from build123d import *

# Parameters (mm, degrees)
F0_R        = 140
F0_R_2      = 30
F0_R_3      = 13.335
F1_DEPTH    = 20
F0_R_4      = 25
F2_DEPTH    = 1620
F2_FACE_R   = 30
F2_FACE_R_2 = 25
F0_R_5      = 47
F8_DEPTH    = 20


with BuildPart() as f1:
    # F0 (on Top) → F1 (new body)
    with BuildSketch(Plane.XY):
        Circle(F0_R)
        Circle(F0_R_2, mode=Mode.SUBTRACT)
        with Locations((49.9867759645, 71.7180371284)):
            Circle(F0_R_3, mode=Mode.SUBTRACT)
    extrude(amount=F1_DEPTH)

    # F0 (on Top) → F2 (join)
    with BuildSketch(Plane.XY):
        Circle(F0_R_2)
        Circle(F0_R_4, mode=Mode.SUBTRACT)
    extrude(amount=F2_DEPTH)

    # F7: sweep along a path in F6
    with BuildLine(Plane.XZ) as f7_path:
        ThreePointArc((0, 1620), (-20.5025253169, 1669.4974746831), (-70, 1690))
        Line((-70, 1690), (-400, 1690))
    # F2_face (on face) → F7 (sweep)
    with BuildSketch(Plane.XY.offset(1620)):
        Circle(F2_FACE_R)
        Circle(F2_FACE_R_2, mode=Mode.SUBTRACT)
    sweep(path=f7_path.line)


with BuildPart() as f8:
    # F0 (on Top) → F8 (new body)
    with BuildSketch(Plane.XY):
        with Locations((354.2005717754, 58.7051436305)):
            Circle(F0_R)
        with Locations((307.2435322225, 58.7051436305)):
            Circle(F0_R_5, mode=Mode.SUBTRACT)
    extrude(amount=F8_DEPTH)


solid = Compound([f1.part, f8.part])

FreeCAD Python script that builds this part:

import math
import FreeCAD as App
import Part
import Sketcher

V = App.Vector

doc = App.newDocument("Part")
body = doc.addObject("PartDesign::Body", "Body")

# Sketch on XY plane
sketch1 = body.newObject("Sketcher::SketchObject", "Sketch")
sketch1.AttachmentSupport = (doc.getObject("XY_Plane"), [""])
sketch1.MapMode = "FlatFace"
sketch1.addGeometry([
    Part.Circle(V(0, 0, 0), V(0, 0, 1), 140),
    Part.Circle(V(0, 0, 0), V(0, 0, 1), 30),
    Part.Circle(V(49.986776, 71.718037, 0), V(0, 0, 1), 13.335),
], False)
sketch1.addConstraint([
    Sketcher.Constraint("Coincident", 0, 3, -1, 1),
    Sketcher.Constraint("Coincident", 1, 3, -1, 1),
    Sketcher.Constraint("Diameter", 0, 280.0),
    Sketcher.Constraint("Diameter", 1, 60.0),
    Sketcher.Constraint("Diameter", 2, 26.67),
    Sketcher.Constraint("DistanceX", -1, 1, 2, 3, 49.986776),
    Sketcher.Constraint("DistanceY", -1, 1, 2, 3, 71.718037),
])
pad1 = body.newObject("PartDesign::Pad", "Pad")
pad1.Profile = sketch1
pad1.Length = 20

# Sketch on XY plane
sketch2 = body.newObject("Sketcher::SketchObject", "Sketch001")
sketch2.AttachmentSupport = (doc.getObject("XY_Plane"), [""])
sketch2.MapMode = "FlatFace"
sketch2.addGeometry([
    Part.Circle(V(0, 0, 0), V(0, 0, 1), 30),
    Part.Circle(V(0, 0, 0), V(0, 0, 1), 25),
], False)
sketch2.addConstraint([
    Sketcher.Constraint("Coincident", 0, 3, -1, 1),
    Sketcher.Constraint("Coincident", 1, 3, -1, 1),
    Sketcher.Constraint("Diameter", 0, 60.0),
    Sketcher.Constraint("Diameter", 1, 50.0),
])
pad2 = body.newObject("PartDesign::Pad", "Pad001")
pad2.Profile = sketch2
pad2.Length = 1620

# Sketch on XY plane
sketch3 = body.newObject("Sketcher::SketchObject", "Sketch002")
sketch3.AttachmentSupport = (doc.getObject("XY_Plane"), [""])
sketch3.MapMode = "FlatFace"
sketch3.AttachmentOffset = App.Placement(V(0, 0, 1620), App.Rotation())
sketch3.addGeometry([
    Part.Circle(V(0, 0, 0), V(0, 0, 1), 30),
    Part.Circle(V(0, 0, 0), V(0, 0, 1), 25),
], False)
sketch3.addConstraint([
    Sketcher.Constraint("Coincident", 0, 3, -1, 1),
    Sketcher.Constraint("Coincident", 1, 3, -1, 1),
    Sketcher.Constraint("Diameter", 0, 60.0),
    Sketcher.Constraint("Diameter", 1, 50.0),
])

# Sketch on XZ plane
sketch4 = body.newObject("Sketcher::SketchObject", "Sketch003")
sketch4.AttachmentSupport = (doc.getObject("XZ_Plane"), [""])
sketch4.MapMode = "FlatFace"
sketch4.addGeometry([
    Part.ArcOfCircle(Part.Circle(V(-70, 1620, 0), V(0, 0, 1), 70), math.radians(0), math.radians(90)),
    Part.LineSegment(V(-70, 1690, 0), V(-400, 1690, 0)),
], False)
sketch4.addConstraint([
    Sketcher.Constraint("Tangent", 0, 2, 1, 1),
    Sketcher.Constraint("Horizontal", 1),
    Sketcher.Constraint("PointOnObject", 0, 1, -2),
    Sketcher.Constraint("Radius", 0, 70.0),
    Sketcher.Constraint("DistanceX", 1, 2, 1, 1, 330.0),
    Sketcher.Constraint("DistanceY", -1, 1, 0, 3, 1620.0),
    Sketcher.Constraint("DistanceY", -1, 1, 0, 1, 1620.0),
])
doc.recompute()

additivepipe = body.newObject("PartDesign::AdditivePipe", "AdditivePipe")
additivepipe.Profile = sketch3
additivepipe.Spine = (sketch4, ["Edge1", "Edge2"])
body2 = doc.addObject("PartDesign::Body", "Body001")

# Sketch on XY plane
sketch5 = body2.newObject("Sketcher::SketchObject", "Sketch004")
sketch5.AttachmentSupport = (doc.getObject("XY_Plane001"), [""])
sketch5.MapMode = "FlatFace"
sketch5.addGeometry([
    Part.Circle(V(354.200572, 58.705144, 0), V(0, 0, 1), 140),
    Part.Circle(V(307.243532, 58.705144, 0), V(0, 0, 1), 47),
], False)
sketch5.addConstraint([
    Sketcher.Constraint("Horizontal", 0, 3, 1, 3),
    Sketcher.Constraint("Diameter", 0, 280.0),
    Sketcher.Constraint("Diameter", 1, 94.0),
    Sketcher.Constraint("DistanceX", -1, 1, 0, 3, 354.200572),
    Sketcher.Constraint("DistanceX", 1, 3, 0, 3, 46.95704),
    Sketcher.Constraint("DistanceY", -1, 1, 0, 3, 58.705144),
])
pad3 = body2.newObject("PartDesign::Pad", "Pad002")
pad3.Profile = sketch5
pad3.Length = 20

doc.recompute()
